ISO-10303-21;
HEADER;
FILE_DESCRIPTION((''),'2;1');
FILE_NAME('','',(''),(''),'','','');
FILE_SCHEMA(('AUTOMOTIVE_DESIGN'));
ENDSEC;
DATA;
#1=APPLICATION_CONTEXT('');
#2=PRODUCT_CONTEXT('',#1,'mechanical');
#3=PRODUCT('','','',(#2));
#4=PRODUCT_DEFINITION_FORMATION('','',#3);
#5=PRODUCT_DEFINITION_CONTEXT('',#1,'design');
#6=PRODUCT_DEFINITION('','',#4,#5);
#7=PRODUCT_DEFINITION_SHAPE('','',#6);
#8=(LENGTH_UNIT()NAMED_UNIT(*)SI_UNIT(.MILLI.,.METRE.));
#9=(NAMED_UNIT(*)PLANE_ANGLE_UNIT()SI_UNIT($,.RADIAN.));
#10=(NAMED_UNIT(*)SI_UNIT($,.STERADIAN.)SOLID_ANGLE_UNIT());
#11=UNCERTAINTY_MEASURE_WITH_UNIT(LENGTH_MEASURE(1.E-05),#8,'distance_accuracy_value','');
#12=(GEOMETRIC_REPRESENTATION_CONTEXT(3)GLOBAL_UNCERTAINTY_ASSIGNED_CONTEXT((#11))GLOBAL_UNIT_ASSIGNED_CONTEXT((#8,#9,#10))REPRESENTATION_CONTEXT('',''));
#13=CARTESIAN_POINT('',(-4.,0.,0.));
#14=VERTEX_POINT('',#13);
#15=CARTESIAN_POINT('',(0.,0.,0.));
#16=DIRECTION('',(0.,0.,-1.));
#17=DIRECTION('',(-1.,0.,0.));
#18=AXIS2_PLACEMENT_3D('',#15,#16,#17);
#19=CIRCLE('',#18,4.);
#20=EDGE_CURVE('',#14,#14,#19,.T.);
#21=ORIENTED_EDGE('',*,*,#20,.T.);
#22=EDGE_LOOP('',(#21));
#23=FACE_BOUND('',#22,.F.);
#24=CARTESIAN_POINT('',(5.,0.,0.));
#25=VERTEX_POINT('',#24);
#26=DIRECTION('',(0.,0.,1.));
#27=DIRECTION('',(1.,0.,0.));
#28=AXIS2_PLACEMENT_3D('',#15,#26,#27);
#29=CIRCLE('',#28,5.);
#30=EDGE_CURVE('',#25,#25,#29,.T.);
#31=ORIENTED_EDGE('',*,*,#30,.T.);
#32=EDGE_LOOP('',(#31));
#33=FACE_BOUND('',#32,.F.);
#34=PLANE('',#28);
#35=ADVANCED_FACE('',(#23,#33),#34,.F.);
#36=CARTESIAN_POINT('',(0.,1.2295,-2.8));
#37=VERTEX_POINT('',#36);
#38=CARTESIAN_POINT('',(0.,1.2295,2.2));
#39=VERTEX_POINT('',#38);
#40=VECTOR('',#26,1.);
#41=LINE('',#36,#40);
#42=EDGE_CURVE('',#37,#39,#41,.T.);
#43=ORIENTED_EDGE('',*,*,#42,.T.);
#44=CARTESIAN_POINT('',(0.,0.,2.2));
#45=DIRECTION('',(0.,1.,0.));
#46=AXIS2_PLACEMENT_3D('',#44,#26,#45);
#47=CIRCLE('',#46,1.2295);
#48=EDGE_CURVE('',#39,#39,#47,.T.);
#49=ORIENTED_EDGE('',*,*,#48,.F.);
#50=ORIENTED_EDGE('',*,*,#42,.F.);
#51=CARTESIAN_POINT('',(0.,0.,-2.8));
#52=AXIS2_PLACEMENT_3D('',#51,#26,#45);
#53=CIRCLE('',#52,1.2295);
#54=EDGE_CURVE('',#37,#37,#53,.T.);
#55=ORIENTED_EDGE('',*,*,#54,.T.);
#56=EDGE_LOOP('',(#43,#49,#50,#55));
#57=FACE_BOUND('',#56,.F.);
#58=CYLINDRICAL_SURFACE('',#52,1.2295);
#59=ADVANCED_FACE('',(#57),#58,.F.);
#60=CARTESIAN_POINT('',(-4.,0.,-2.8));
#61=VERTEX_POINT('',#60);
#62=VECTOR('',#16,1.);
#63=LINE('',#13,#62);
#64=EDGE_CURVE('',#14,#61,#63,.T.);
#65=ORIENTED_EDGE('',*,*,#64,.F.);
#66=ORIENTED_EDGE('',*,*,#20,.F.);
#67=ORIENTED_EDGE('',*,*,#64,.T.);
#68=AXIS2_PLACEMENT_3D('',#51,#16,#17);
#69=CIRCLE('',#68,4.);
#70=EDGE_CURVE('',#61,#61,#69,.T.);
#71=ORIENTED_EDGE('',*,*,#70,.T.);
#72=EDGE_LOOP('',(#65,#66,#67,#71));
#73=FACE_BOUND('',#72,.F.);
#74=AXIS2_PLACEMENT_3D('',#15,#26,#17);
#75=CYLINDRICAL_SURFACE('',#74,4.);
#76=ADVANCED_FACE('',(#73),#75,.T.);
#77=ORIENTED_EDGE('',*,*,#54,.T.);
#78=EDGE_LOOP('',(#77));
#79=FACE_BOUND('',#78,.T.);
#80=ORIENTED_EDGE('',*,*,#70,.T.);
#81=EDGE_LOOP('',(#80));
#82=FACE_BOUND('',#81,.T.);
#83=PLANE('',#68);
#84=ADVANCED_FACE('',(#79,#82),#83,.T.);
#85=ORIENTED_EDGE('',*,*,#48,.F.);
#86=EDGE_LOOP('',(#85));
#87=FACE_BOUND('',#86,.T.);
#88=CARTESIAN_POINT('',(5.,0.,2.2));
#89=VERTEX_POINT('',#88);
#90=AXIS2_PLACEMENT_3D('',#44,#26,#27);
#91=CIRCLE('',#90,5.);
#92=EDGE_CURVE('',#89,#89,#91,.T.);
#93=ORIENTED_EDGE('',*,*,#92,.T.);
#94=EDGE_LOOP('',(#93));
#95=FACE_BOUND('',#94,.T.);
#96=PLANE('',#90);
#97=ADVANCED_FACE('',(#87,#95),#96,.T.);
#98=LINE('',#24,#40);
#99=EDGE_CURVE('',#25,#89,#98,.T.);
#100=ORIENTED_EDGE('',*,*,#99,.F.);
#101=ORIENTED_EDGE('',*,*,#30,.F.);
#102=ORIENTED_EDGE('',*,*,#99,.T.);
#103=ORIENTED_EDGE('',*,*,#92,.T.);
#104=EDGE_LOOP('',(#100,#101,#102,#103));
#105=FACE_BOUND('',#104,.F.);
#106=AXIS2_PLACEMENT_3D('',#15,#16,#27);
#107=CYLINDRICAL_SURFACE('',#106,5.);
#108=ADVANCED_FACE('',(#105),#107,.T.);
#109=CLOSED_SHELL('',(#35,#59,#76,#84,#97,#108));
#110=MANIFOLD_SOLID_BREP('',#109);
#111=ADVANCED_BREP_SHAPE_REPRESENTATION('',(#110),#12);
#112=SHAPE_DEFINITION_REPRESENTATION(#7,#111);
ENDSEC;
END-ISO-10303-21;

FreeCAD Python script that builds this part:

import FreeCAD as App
import Part
import Sketcher
Q = App.Units.Quantity

doc = App.newDocument("Part")
body = doc.addObject("PartDesign::Body", "Body")

# Sketch on XY plane
sketch1 = body.newObject("Sketcher::SketchObject", "Sketch")
sketch1.AttachmentSupport = (doc.getObject("XY_Plane"), [""])
sketch1.MapMode = "FlatFace"
sketch1.addGeometry(Part.Circle(App.Vector(0, 0, 0), App.Vector(0, 0, 1), 5), False)
sketch1.addConstraint([
    Sketcher.Constraint("Coincident", 0, 3, -1, 1),
    Sketcher.Constraint("Diameter", 0, Q("10 mm")),
])
pad1 = body.newObject("PartDesign::Pad", "Pad")
pad1.Profile = sketch1
pad1.Length = 2.2

# Sketch on XY plane
sketch2 = body.newObject("Sketcher::SketchObject", "Sketch001")
sketch2.AttachmentSupport = (doc.getObject("XY_Plane"), [""])
sketch2.MapMode = "FlatFace"
sketch2.addGeometry(Part.Circle(App.Vector(0, 0, 0), App.Vector(0, 0, 1), 4), False)
sketch2.addConstraint([
    Sketcher.Constraint("Coincident", 0, 3, -1, 1),
    Sketcher.Constraint("Diameter", 0, Q("8 mm")),
])
pad2 = body.newObject("PartDesign::Pad", "Pad001")
pad2.Profile = sketch2
pad2.Length = 2.8
pad2.Reversed = True

# Sketch on XY plane
sketch3 = body.newObject("Sketcher::SketchObject", "Sketch002")
sketch3.AttachmentSupport = (doc.getObject("XY_Plane"), [""])
sketch3.MapMode = "FlatFace"
sketch3.AttachmentOffset = App.Placement(App.Vector(0, 0, -2.8), App.Rotation())
sketch3.addGeometry(Part.Circle(App.Vector(0, 0, 0), App.Vector(0, 0, 1), 1.2), False)
sketch3.addConstraint([
    Sketcher.Constraint("Coincident", 0, 3, -1, 1),
    Sketcher.Constraint("Diameter", 0, Q("2.459 mm")),
])
doc.recompute()
hole = body.newObject("PartDesign::Hole", "Hole")
hole.Profile = sketch3
hole.ThreadType = "None"
hole.Diameter = 2.459
hole.DepthType = "ThroughAll"
hole.Reversed = True

doc.recompute()
